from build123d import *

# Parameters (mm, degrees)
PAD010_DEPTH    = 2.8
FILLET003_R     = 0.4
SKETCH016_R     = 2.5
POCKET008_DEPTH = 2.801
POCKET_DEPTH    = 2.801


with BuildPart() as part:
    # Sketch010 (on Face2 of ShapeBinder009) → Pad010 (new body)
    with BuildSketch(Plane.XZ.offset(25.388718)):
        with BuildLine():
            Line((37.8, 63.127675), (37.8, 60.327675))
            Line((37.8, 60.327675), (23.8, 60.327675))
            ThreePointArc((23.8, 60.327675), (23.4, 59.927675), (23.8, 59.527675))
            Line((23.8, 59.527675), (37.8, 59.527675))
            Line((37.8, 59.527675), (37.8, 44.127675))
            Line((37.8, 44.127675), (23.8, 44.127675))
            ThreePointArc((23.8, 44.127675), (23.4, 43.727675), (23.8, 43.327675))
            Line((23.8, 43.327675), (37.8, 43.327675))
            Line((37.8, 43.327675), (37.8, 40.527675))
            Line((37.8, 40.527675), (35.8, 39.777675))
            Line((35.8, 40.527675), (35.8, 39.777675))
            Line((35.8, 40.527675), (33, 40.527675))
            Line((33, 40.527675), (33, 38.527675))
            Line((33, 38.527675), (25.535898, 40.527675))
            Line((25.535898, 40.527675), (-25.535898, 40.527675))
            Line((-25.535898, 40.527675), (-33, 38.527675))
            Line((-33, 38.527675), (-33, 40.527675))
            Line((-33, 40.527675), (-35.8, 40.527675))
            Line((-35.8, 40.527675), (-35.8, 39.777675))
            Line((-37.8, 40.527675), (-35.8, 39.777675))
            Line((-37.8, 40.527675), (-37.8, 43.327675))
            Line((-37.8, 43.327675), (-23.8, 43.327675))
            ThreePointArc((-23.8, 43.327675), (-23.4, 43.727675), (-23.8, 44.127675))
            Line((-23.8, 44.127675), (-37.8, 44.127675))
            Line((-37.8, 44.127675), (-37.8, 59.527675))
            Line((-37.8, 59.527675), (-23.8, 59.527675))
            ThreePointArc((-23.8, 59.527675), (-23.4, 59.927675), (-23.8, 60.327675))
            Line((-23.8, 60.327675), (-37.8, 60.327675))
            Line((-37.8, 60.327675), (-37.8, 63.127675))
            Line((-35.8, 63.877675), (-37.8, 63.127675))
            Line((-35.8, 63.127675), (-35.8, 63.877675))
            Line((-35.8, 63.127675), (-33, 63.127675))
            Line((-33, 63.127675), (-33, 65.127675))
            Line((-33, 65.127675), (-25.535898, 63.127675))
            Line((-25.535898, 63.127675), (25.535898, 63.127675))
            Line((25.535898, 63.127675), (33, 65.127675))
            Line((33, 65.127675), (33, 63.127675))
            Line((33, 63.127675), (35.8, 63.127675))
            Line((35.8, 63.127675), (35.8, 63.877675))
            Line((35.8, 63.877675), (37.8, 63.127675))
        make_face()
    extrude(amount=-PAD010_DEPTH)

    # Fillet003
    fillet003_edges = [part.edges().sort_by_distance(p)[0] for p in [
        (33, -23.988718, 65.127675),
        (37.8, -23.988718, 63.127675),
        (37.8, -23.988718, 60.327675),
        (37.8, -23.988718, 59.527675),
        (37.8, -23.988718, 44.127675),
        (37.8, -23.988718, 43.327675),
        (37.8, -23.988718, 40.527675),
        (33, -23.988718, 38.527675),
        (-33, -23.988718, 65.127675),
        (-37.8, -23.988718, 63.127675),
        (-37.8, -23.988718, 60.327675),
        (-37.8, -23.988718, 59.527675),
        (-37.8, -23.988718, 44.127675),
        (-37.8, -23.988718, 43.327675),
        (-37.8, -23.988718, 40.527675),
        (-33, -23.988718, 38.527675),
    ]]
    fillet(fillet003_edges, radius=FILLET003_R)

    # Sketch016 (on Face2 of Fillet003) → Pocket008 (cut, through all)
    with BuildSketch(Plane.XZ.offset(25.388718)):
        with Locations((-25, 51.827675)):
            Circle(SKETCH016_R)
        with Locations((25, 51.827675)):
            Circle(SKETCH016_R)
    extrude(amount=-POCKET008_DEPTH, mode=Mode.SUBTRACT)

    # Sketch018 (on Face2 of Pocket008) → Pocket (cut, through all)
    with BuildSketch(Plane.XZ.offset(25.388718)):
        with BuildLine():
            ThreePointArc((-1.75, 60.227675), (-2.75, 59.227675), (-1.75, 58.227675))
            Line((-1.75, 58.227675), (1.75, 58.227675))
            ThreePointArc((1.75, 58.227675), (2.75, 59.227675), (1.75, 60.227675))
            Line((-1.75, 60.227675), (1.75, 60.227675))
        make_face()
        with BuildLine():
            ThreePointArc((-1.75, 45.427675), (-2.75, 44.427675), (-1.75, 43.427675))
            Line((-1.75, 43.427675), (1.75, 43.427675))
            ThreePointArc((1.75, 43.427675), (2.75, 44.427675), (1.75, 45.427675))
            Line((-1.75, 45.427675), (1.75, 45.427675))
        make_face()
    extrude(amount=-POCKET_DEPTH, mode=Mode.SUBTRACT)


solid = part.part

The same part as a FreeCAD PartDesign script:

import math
import FreeCAD as App
import Part
import Sketcher
Q = App.Units.Quantity


def edges_at(feature, points):
    """Names of the edges that pass closest to the given points."""
    edges = feature.Shape.Edges
    near = lambda p: min(range(len(edges)), key=lambda i: edges[i].distToShape(Part.Vertex(*p))[0])
    return sorted({f"Edge{near(p) + 1}" for p in points})

doc = App.newDocument("Part")
body = doc.addObject("PartDesign::Body", "Body")

sketch1 = doc.addObject("Sketcher::SketchObject", "Sketch")
body.addObject(sketch1)
sketch1.AttachmentSupport = (doc.XZ_Plane, [""])
sketch1.MapMode = "FlatFace"
sketch1.AttachmentOffset = App.Placement(App.Vector(0, 0, 25.388718), App.Rotation())
sketch1.addGeometry([
    Part.LineSegment(App.Vector(37.8, 60.33, 0), App.Vector(37.8, 63.13, 0)),
    Part.LineSegment(App.Vector(37.8, 63.13, 0), App.Vector(35.8, 63.88, 0)),
    Part.LineSegment(App.Vector(35.8, 63.88, 0), App.Vector(35.8, 63.13, 0)),
    Part.LineSegment(App.Vector(35.8, 63.13, 0), App.Vector(33, 63.13, 0)),
    Part.LineSegment(App.Vector(33, 63.13, 0), App.Vector(33, 65.13, 0)),
    Part.LineSegment(App.Vector(33, 65.13, 0), App.Vector(25.54, 63.13, 0)),
    Part.LineSegment(App.Vector(25.54, 63.13, 0), App.Vector(-25.54, 63.13, 0)),
    Part.LineSegment(App.Vector(-25.54, 63.13, 0), App.Vector(-33, 65.13, 0)),
    Part.LineSegment(App.Vector(-33, 65.13, 0), App.Vector(-33, 63.13, 0)),
    Part.LineSegment(App.Vector(-33, 63.13, 0), App.Vector(-35.8, 63.13, 0)),
    Part.LineSegment(App.Vector(-35.8, 63.13, 0), App.Vector(-35.8, 63.88, 0)),
    Part.LineSegment(App.Vector(-35.8, 63.88, 0), App.Vector(-37.8, 63.13, 0)),
    Part.LineSegment(App.Vector(-37.8, 63.13, 0), App.Vector(-37.8, 60.33, 0)),
    Part.LineSegment(App.Vector(-37.8, 60.33, 0), App.Vector(-23.8, 60.33, 0)),
    Part.ArcOfCircle(Part.Circle(App.Vector(-23.8, 59.93, 0), App.Vector(0, 0, 1), 0.4), math.radians(-90), math.radians(90)),
    Part.LineSegment(App.Vector(-23.8, 59.53, 0), App.Vector(-37.8, 59.53, 0)),
    Part.LineSegment(App.Vector(-37.8, 59.53, 0), App.Vector(-37.8, 44.13, 0)),
    Part.LineSegment(App.Vector(-37.8, 44.13, 0), App.Vector(-23.8, 44.13, 0)),
    Part.ArcOfCircle(Part.Circle(App.Vector(-23.8, 43.73, 0), App.Vector(0, 0, 1), 0.4), math.radians(-90), math.radians(90)),
    Part.LineSegment(App.Vector(-23.8, 43.33, 0), App.Vector(-37.8, 43.33, 0)),
    Part.LineSegment(App.Vector(-37.8, 43.33, 0), App.Vector(-37.8, 40.53, 0)),
    Part.LineSegment(App.Vector(-37.8, 40.53, 0), App.Vector(-35.8, 39.78, 0)),
    Part.LineSegment(App.Vector(-35.8, 39.78, 0), App.Vector(-35.8, 40.53, 0)),
    Part.LineSegment(App.Vector(-35.8, 40.53, 0), App.Vector(-33, 40.53, 0)),
    Part.LineSegment(App.Vector(-33, 40.53, 0), App.Vector(-33, 38.53, 0)),
    Part.LineSegment(App.Vector(-33, 38.53, 0), App.Vector(-25.54, 40.53, 0)),
    Part.LineSegment(App.Vector(-25.54, 40.53, 0), App.Vector(25.54, 40.53, 0)),
    Part.LineSegment(App.Vector(25.54, 40.53, 0), App.Vector(33, 38.53, 0)),
    Part.LineSegment(App.Vector(33, 38.53, 0), App.Vector(33, 40.53, 0)),
    Part.LineSegment(App.Vector(33, 40.53, 0), App.Vector(35.8, 40.53, 0)),
    Part.LineSegment(App.Vector(35.8, 40.53, 0), App.Vector(35.8, 39.78, 0)),
    Part.LineSegment(App.Vector(35.8, 39.78, 0), App.Vector(37.8, 40.53, 0)),
    Part.LineSegment(App.Vector(37.8, 40.53, 0), App.Vector(37.8, 43.33, 0)),
    Part.LineSegment(App.Vector(37.8, 43.33, 0), App.Vector(23.8, 43.33, 0)),
    Part.ArcOfCircle(Part.Circle(App.Vector(23.8, 43.73, 0), App.Vector(0, 0, 1), 0.4), math.radians(90), math.radians(270)),
    Part.LineSegment(App.Vector(23.8, 44.13, 0), App.Vector(37.8, 44.13, 0)),
    Part.LineSegment(App.Vector(37.8, 44.13, 0), App.Vector(37.8, 59.53, 0)),
    Part.LineSegment(App.Vector(37.8, 59.53, 0), App.Vector(23.8, 59.53, 0)),
    Part.ArcOfCircle(Part.Circle(App.Vector(23.8, 59.93, 0), App.Vector(0, 0, 1), 0.4), math.radians(90), math.radians(270)),
    Part.LineSegment(App.Vector(23.8, 60.33, 0), App.Vector(37.8, 60.33, 0)),
], False)
sketch1.addConstraint([
    Sketcher.Constraint("Coincident", 0, 2, 1, 1),
    Sketcher.Constraint("Coincident", 1, 2, 2, 1),
    Sketcher.Constraint("Coincident", 2, 2, 3, 1),
    Sketcher.Constraint("Coincident", 3, 2, 4, 1),
    Sketcher.Constraint("Coincident", 4, 2, 5, 1),
    Sketcher.Constraint("Coincident", 5, 2, 6, 1),
    Sketcher.Constraint("Coincident", 6, 2, 7, 1),
    Sketcher.Constraint("Coincident", 7, 2, 8, 1),
    Sketcher.Constraint("Coincident", 8, 2, 9, 1),
    Sketcher.Constraint("Coincident", 9, 2, 10, 1),
    Sketcher.Constraint("Coincident", 10, 2, 11, 1),
    Sketcher.Constraint("Coincident", 11, 2, 12, 1),
    Sketcher.Constraint("Coincident", 12, 2, 13, 1),
    Sketcher.Constraint("Tangent", 13, 2, 14, 2),
    Sketcher.Constraint("Tangent", 14, 1, 15, 1),
    Sketcher.Constraint("Coincident", 15, 2, 16, 1),
    Sketcher.Constraint("Coincident", 16, 2, 17, 1),
    Sketcher.Constraint("Tangent", 17, 2, 18, 2),
    Sketcher.Constraint("Tangent", 18, 1, 19, 1),
    Sketcher.Constraint("Coincident", 19, 2, 20, 1),
    Sketcher.Constraint("Coincident", 20, 2, 21, 1),
    Sketcher.Constraint("Coincident", 21, 2, 22, 1),
    Sketcher.Constraint("Coincident", 22, 2, 23, 1),
    Sketcher.Constraint("Coincident", 23, 2, 24, 1),
    Sketcher.Constraint("Coincident", 24, 2, 25, 1),
    Sketcher.Constraint("Coincident", 25, 2, 26, 1),
    Sketcher.Constraint("Coincident", 26, 2, 27, 1),
    Sketcher.Constraint("Coincident", 27, 2, 28, 1),
    Sketcher.Constraint("Coincident", 28, 2, 29, 1),
    Sketcher.Constraint("Coincident", 29, 2, 30, 1),
    Sketcher.Constraint("Coincident", 30, 2, 31, 1),
    Sketcher.Constraint("Coincident", 31, 2, 32, 1),
    Sketcher.Constraint("Coincident", 32, 2, 33, 1),
    Sketcher.Constraint("Tangent", 33, 2, 34, 2),
    Sketcher.Constraint("Tangent", 34, 1, 35, 1),
    Sketcher.Constraint("Coincident", 35, 2, 36, 1),
    Sketcher.Constraint("Coincident", 36, 2, 37, 1),
    Sketcher.Constraint("Tangent", 37, 2, 38, 2),
    Sketcher.Constraint("Tangent", 38, 1, 39, 1),
    Sketcher.Constraint("Coincident", 39, 2, 0, 1),
    Sketcher.Constraint("Vertical", 0),
    Sketcher.Constraint("Vertical", 2),
    Sketcher.Constraint("Horizontal", 3),
    Sketcher.Constraint("Vertical", 4),
    Sketcher.Constraint("Horizontal", 6),
    Sketcher.Constraint("Vertical", 8),
    Sketcher.Constraint("Horizontal", 9),
    Sketcher.Constraint("Vertical", 10),
    Sketcher.Constraint("Vertical", 12),
    Sketcher.Constraint("Horizontal", 13),
    Sketcher.Constraint("Horizontal", 15),
    Sketcher.Constraint("Vertical", 16),
    Sketcher.Constraint("Horizontal", 17),
    Sketcher.Constraint("Horizontal", 19),
    Sketcher.Constraint("Vertical", 20),
    Sketcher.Constraint("Vertical", 22),
    Sketcher.Constraint("Horizontal", 23),
    Sketcher.Constraint("Vertical", 24),
    Sketcher.Constraint("Horizontal", 26),
    Sketcher.Constraint("Vertical", 28),
    Sketcher.Constraint("Horizontal", 29),
    Sketcher.Constraint("Vertical", 30),
    Sketcher.Constraint("Vertical", 32),
    Sketcher.Constraint("Horizontal", 33),
    Sketcher.Constraint("Horizontal", 35),
    Sketcher.Constraint("Vertical", 36),
    Sketcher.Constraint("Horizontal", 37),
    Sketcher.Constraint("Horizontal", 39),
    Sketcher.Constraint("Equal", 14, 18),
    Sketcher.Constraint("Equal", 18, 34),
    Sketcher.Constraint("Equal", 34, 38),
    Sketcher.Constraint("Symmetric", 18, 3, 34, 3, -2),
    Sketcher.Constraint("Symmetric", 14, 3, 38, 3, -2),
    Sketcher.Constraint("Symmetric", 4, 2, 7, 2, -2),
    Sketcher.Constraint("Symmetric", 2, 2, 9, 2, -2),
    Sketcher.Constraint("Symmetric", 0, 2, 11, 2, -2),
    Sketcher.Constraint("Symmetric", 24, 2, 27, 2, -2),
    Sketcher.Constraint("Symmetric", 22, 2, 29, 2, -2),
    Sketcher.Constraint("Symmetric", 20, 2, 31, 2, -2),
    Sketcher.Constraint("Parallel", 1, 21),
    Sketcher.Constraint("Parallel", 5, 25),
    Sketcher.Constraint("Parallel", 7, 27),
    Sketcher.Constraint("Parallel", 11, 31),
    Sketcher.Constraint("Horizontal", 0, 2, 2, 2),
    Sketcher.Constraint("Horizontal", 3, 2, 5, 2),
    Sketcher.Constraint("Horizontal", 1, 2, 10, 2),
    Sketcher.Constraint("Horizontal", 20, 2, 22, 2),
    Sketcher.Constraint("Horizontal", 23, 2, 25, 2),
    Sketcher.Constraint("Vertical", 14, 3, 18, 3),
    Sketcher.Constraint("Vertical", 12, 2, 15, 2),
    Sketcher.Constraint("Vertical", 16, 2, 19, 2),
    Sketcher.Constraint("Vertical", 10, 2, 21, 2),
    Sketcher.Constraint("Vertical", 8, 2, 23, 2),
    Sketcher.Constraint("Vertical", 6, 2, 25, 2),
    Sketcher.Constraint("Vertical", 5, 2, 26, 2),
    Sketcher.Constraint("Vertical", 32, 2, 35, 2),
    Sketcher.Constraint("Equal", 29, 0),
    Sketcher.Constraint("Equal", 12, 20),
    Sketcher.Constraint("Radius", 14, 0.4),
    Sketcher.Constraint("DistanceX", 13, 1, 13, 2, 14.0),
    Sketcher.Constraint("DistanceY", 4, 1, 4, 2, 2.0),
    Sketcher.Constraint("Angle", 5, Q("-165.000001 deg")),
    Sketcher.Constraint("DistanceX", 3, 2, 3, 1, 2.8),
    Sketcher.Constraint("DistanceY", 16, 2, 16, 1, 15.4),
    Sketcher.Constraint("DistanceX", -1, 1, 3, 2, 33.0),
    Sketcher.Constraint("DistanceX", 1, 2, 0, 2, 2.0),
    Sketcher.Constraint("DistanceY", 2, 2, 2, 1, 0.75),
    Sketcher.Constraint("DistanceY", -1, 1, 14, 3, 59.927675),
])
pad1 = doc.addObject("PartDesign::Pad", "Pad")
body.addObject(pad1)
pad1.Profile = sketch1
pad1.Length = 2.8
pad1.Reversed = True
doc.recompute()

fillet = doc.addObject("PartDesign::Fillet", "Fillet")
body.addObject(fillet)
fillet.Base = (pad1, edges_at(pad1, [
    (33, -23.989, 65.128),
    (37.8, -23.989, 63.128),
    (37.8, -23.989, 60.328),
    (37.8, -23.989, 59.528),
    (37.8, -23.989, 44.128),
    (37.8, -23.989, 43.328),
    (37.8, -23.989, 40.528),
    (33, -23.989, 38.528),
    (-33, -23.989, 65.128),
    (-37.8, -23.989, 63.128),
    (-37.8, -23.989, 60.328),
    (-37.8, -23.989, 59.528),
    (-37.8, -23.989, 44.128),
    (-37.8, -23.989, 43.328),
    (-37.8, -23.989, 40.528),
    (-33, -23.989, 38.528),
]))
fillet.Radius = 0.4

sketch2 = doc.addObject("Sketcher::SketchObject", "Sketch001")
body.addObject(sketch2)
sketch2.AttachmentSupport = (doc.XZ_Plane, [""])
sketch2.MapMode = "FlatFace"
sketch2.AttachmentOffset = App.Placement(App.Vector(0, 0, 25.388718), App.Rotation())
sketch2.addGeometry([
    Part.Circle(App.Vector(-25, 51.8, 0), App.Vector(0, 0, 1), 2.5),
    Part.Circle(App.Vector(25, 51.8, 0), App.Vector(0, 0, 1), 2.5),
], False)
sketch2.addConstraint([
    Sketcher.Constraint("Equal", 0, 1),
    Sketcher.Constraint("Symmetric", 0, 3, 1, 3, -2),
    Sketcher.Constraint("Diameter", 0, 5.0),
    Sketcher.Constraint("DistanceX", 0, 3, -1, 1, 25.0),
    Sketcher.Constraint("DistanceY", -1, 1, 0, 3, 51.827675),
])
pocket1 = doc.addObject("PartDesign::Pocket", "Pocket")
body.addObject(pocket1)
pocket1.Profile = sketch2
pocket1.Type = "ThroughAll"

sketch3 = doc.addObject("Sketcher::SketchObject", "Sketch002")
body.addObject(sketch3)
sketch3.AttachmentSupport = (doc.XZ_Plane, [""])
sketch3.MapMode = "FlatFace"
sketch3.AttachmentOffset = App.Placement(App.Vector(0, 0, 25.388718), App.Rotation())
sketch3.addGeometry([
    Part.ArcOfCircle(Part.Circle(App.Vector(-1.8, 59.2, 0), App.Vector(0, 0, 1), 1), math.radians(90), math.radians(270)),
    Part.LineSegment(App.Vector(-1.8, 58.2, 0), App.Vector(1.8, 58.2, 0)),
    Part.ArcOfCircle(Part.Circle(App.Vector(1.8, 59.2, 0), App.Vector(0, 0, 1), 1), math.radians(-90), math.radians(90)),
    Part.LineSegment(App.Vector(1.8, 60.2, 0), App.Vector(-1.8, 60.2, 0)),
    Part.ArcOfCircle(Part.Circle(App.Vector(-1.8, 44.4, 0), App.Vector(0, 0, 1), 1), math.radians(90), math.radians(270)),
    Part.LineSegment(App.Vector(-1.8, 43.4, 0), App.Vector(1.8, 43.4, 0)),
    Part.ArcOfCircle(Part.Circle(App.Vector(1.8, 44.4, 0), App.Vector(0, 0, 1), 1), math.radians(-90), math.radians(90)),
    Part.LineSegment(App.Vector(1.8, 45.4, 0), App.Vector(-1.8, 45.4, 0)),
], False)
sketch3.addConstraint([
    Sketcher.Constraint("Tangent", 0, 2, 1, 1),
    Sketcher.Constraint("Tangent", 1, 2, 2, 1),
    Sketcher.Constraint("Tangent", 2, 2, 3, 1),
    Sketcher.Constraint("Tangent", 3, 2, 0, 1),
    Sketcher.Constraint("Tangent", 4, 2, 5, 1),
    Sketcher.Constraint("Tangent", 5, 2, 6, 1),
    Sketcher.Constraint("Tangent", 6, 2, 7, 1),
    Sketcher.Constraint("Tangent", 7, 2, 4, 1),
    Sketcher.Constraint("Horizontal", 1),
    Sketcher.Constraint("Horizontal", 3),
    Sketcher.Constraint("Horizontal", 5),
    Sketcher.Constraint("Horizontal", 7),
    Sketcher.Constraint("Equal", 2, 4),
    Sketcher.Constraint("Vertical", 0, 3, 4, 3),
    Sketcher.Constraint("Vertical", 2, 3, 6, 3),
    Sketcher.Constraint("Radius", 0, 1.0),
    Sketcher.Constraint("DistanceX", 1, 1, 1, 2, 3.5),
    Sketcher.Constraint("DistanceY", 4, 3, 0, 3, 14.8),
    Sketcher.Constraint("DistanceX", 0, 3, -1, 1, 1.75),
    Sketcher.Constraint("DistanceY", -1, 1, 0, 3, 59.227675),
])
pocket2 = doc.addObject("PartDesign::Pocket", "Pocket001")
body.addObject(pocket2)
pocket2.Profile = sketch3
pocket2.Type = "ThroughAll"

doc.recompute()
